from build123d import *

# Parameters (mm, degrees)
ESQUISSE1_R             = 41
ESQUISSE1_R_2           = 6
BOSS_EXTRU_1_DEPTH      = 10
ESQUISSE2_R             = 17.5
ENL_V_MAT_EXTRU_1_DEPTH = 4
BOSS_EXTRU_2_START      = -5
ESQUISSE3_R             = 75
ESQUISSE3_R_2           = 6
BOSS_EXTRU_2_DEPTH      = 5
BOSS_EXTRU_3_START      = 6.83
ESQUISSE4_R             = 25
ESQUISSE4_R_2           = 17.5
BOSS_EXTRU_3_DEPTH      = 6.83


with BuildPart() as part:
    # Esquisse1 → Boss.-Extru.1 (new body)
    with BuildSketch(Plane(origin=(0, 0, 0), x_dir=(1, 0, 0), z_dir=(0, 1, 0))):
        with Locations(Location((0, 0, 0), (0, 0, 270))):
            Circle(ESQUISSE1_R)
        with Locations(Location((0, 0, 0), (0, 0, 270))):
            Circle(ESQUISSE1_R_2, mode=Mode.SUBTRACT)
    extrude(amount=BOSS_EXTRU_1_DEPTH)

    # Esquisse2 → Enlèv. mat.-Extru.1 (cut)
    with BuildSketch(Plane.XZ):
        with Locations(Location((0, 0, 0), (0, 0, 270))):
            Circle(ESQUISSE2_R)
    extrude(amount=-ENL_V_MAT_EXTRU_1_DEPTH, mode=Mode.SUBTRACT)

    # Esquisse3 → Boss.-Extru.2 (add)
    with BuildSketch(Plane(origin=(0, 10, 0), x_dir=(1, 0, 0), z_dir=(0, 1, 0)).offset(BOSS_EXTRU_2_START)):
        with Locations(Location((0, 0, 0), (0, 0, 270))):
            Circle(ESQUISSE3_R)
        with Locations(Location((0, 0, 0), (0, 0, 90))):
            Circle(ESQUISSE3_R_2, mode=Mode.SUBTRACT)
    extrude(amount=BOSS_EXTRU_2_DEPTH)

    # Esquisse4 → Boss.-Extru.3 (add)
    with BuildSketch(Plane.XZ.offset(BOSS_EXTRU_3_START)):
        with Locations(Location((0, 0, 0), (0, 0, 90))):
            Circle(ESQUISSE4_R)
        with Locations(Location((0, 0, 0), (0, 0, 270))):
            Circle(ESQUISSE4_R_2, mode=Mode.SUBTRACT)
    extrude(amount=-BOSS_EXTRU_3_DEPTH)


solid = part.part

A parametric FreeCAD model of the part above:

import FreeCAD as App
import Part
import Sketcher
from FreeCAD import Vector

doc = App.newDocument("Part")
body = doc.addObject("PartDesign::Body", "Body")

sketch1 = body.newObject("Sketcher::SketchObject", "Sketch")
sketch1.AttachmentSupport = (doc.getObject("XZ_Plane"), [""])
sketch1.MapMode = "FlatFace"
sketch1.addGeometry(Part.Circle(Vector(0, 0, 0), Vector(0, 0, 1), 41), False)
sketch1.addGeometry(Part.Circle(Vector(0, 0, 0), Vector(0, 0, 1), 6), False)
sketch1.addConstraint(Sketcher.Constraint("Coincident", 0, 3, -1, 1))
sketch1.addConstraint(Sketcher.Constraint("Coincident", 1, 3, -1, 1))
sketch1.addConstraint(Sketcher.Constraint("Diameter", 0, 82.0))
sketch1.addConstraint(Sketcher.Constraint("Diameter", 1, 12.0))
pad1 = body.newObject("PartDesign::Pad", "Pad")
pad1.Profile = sketch1
pad1.Length = 10
pad1.Reversed = True

sketch2 = body.newObject("Sketcher::SketchObject", "Sketch001")
sketch2.AttachmentSupport = (doc.getObject("XZ_Plane"), [""])
sketch2.MapMode = "FlatFace"
sketch2.addGeometry(Part.Circle(Vector(0, 0, 0), Vector(0, 0, 1), 18), False)
sketch2.addConstraint(Sketcher.Constraint("Coincident", 0, 3, -1, 1))
sketch2.addConstraint(Sketcher.Constraint("Diameter", 0, 35.0))
pocket1 = body.newObject("PartDesign::Pocket", "Pocket")
pocket1.Profile = sketch2
pocket1.Length = 4

sketch3 = body.newObject("Sketcher::SketchObject", "Sketch002")
sketch3.AttachmentSupport = (doc.getObject("XZ_Plane"), [""])
sketch3.MapMode = "FlatFace"
sketch3.AttachmentOffset = App.Placement(Vector(0, 0, -5), App.Rotation())
sketch3.addGeometry(Part.Circle(Vector(0, 0, 0), Vector(0, 0, 1), 75), False)
sketch3.addGeometry(Part.Circle(Vector(0, 0, 0), Vector(0, 0, 1), 6), False)
sketch3.addConstraint(Sketcher.Constraint("Coincident", 0, 3, -1, 1))
sketch3.addConstraint(Sketcher.Constraint("Coincident", 1, 3, -1, 1))
sketch3.addConstraint(Sketcher.Constraint("Diameter", 0, 150.0))
sketch3.addConstraint(Sketcher.Constraint("Diameter", 1, 12.0))
pad2 = body.newObject("PartDesign::Pad", "Pad001")
pad2.Profile = sketch3
pad2.Length = 5
pad2.Reversed = True

sketch4 = body.newObject("Sketcher::SketchObject", "Sketch003")
sketch4.AttachmentSupport = (doc.getObject("XZ_Plane"), [""])
sketch4.MapMode = "FlatFace"
sketch4.AttachmentOffset = App.Placement(Vector(0, 0, 6.83), App.Rotation())
sketch4.addGeometry(Part.Circle(Vector(0, 0, 0), Vector(0, 0, 1), 25), False)
sketch4.addGeometry(Part.Circle(Vector(0, 0, 0), Vector(0, 0, 1), 18), False)
sketch4.addConstraint(Sketcher.Constraint("Coincident", 0, 3, -1, 1))
sketch4.addConstraint(Sketcher.Constraint("Coincident", 1, 3, -1, 1))
sketch4.addConstraint(Sketcher.Constraint("Diameter", 0, 50.0))
sketch4.addConstraint(Sketcher.Constraint("Diameter", 1, 35.0))
pad3 = body.newObject("PartDesign::Pad", "Pad002")
pad3.Profile = sketch4
pad3.Length = 6.83
pad3.Reversed = True

doc.recompute()
